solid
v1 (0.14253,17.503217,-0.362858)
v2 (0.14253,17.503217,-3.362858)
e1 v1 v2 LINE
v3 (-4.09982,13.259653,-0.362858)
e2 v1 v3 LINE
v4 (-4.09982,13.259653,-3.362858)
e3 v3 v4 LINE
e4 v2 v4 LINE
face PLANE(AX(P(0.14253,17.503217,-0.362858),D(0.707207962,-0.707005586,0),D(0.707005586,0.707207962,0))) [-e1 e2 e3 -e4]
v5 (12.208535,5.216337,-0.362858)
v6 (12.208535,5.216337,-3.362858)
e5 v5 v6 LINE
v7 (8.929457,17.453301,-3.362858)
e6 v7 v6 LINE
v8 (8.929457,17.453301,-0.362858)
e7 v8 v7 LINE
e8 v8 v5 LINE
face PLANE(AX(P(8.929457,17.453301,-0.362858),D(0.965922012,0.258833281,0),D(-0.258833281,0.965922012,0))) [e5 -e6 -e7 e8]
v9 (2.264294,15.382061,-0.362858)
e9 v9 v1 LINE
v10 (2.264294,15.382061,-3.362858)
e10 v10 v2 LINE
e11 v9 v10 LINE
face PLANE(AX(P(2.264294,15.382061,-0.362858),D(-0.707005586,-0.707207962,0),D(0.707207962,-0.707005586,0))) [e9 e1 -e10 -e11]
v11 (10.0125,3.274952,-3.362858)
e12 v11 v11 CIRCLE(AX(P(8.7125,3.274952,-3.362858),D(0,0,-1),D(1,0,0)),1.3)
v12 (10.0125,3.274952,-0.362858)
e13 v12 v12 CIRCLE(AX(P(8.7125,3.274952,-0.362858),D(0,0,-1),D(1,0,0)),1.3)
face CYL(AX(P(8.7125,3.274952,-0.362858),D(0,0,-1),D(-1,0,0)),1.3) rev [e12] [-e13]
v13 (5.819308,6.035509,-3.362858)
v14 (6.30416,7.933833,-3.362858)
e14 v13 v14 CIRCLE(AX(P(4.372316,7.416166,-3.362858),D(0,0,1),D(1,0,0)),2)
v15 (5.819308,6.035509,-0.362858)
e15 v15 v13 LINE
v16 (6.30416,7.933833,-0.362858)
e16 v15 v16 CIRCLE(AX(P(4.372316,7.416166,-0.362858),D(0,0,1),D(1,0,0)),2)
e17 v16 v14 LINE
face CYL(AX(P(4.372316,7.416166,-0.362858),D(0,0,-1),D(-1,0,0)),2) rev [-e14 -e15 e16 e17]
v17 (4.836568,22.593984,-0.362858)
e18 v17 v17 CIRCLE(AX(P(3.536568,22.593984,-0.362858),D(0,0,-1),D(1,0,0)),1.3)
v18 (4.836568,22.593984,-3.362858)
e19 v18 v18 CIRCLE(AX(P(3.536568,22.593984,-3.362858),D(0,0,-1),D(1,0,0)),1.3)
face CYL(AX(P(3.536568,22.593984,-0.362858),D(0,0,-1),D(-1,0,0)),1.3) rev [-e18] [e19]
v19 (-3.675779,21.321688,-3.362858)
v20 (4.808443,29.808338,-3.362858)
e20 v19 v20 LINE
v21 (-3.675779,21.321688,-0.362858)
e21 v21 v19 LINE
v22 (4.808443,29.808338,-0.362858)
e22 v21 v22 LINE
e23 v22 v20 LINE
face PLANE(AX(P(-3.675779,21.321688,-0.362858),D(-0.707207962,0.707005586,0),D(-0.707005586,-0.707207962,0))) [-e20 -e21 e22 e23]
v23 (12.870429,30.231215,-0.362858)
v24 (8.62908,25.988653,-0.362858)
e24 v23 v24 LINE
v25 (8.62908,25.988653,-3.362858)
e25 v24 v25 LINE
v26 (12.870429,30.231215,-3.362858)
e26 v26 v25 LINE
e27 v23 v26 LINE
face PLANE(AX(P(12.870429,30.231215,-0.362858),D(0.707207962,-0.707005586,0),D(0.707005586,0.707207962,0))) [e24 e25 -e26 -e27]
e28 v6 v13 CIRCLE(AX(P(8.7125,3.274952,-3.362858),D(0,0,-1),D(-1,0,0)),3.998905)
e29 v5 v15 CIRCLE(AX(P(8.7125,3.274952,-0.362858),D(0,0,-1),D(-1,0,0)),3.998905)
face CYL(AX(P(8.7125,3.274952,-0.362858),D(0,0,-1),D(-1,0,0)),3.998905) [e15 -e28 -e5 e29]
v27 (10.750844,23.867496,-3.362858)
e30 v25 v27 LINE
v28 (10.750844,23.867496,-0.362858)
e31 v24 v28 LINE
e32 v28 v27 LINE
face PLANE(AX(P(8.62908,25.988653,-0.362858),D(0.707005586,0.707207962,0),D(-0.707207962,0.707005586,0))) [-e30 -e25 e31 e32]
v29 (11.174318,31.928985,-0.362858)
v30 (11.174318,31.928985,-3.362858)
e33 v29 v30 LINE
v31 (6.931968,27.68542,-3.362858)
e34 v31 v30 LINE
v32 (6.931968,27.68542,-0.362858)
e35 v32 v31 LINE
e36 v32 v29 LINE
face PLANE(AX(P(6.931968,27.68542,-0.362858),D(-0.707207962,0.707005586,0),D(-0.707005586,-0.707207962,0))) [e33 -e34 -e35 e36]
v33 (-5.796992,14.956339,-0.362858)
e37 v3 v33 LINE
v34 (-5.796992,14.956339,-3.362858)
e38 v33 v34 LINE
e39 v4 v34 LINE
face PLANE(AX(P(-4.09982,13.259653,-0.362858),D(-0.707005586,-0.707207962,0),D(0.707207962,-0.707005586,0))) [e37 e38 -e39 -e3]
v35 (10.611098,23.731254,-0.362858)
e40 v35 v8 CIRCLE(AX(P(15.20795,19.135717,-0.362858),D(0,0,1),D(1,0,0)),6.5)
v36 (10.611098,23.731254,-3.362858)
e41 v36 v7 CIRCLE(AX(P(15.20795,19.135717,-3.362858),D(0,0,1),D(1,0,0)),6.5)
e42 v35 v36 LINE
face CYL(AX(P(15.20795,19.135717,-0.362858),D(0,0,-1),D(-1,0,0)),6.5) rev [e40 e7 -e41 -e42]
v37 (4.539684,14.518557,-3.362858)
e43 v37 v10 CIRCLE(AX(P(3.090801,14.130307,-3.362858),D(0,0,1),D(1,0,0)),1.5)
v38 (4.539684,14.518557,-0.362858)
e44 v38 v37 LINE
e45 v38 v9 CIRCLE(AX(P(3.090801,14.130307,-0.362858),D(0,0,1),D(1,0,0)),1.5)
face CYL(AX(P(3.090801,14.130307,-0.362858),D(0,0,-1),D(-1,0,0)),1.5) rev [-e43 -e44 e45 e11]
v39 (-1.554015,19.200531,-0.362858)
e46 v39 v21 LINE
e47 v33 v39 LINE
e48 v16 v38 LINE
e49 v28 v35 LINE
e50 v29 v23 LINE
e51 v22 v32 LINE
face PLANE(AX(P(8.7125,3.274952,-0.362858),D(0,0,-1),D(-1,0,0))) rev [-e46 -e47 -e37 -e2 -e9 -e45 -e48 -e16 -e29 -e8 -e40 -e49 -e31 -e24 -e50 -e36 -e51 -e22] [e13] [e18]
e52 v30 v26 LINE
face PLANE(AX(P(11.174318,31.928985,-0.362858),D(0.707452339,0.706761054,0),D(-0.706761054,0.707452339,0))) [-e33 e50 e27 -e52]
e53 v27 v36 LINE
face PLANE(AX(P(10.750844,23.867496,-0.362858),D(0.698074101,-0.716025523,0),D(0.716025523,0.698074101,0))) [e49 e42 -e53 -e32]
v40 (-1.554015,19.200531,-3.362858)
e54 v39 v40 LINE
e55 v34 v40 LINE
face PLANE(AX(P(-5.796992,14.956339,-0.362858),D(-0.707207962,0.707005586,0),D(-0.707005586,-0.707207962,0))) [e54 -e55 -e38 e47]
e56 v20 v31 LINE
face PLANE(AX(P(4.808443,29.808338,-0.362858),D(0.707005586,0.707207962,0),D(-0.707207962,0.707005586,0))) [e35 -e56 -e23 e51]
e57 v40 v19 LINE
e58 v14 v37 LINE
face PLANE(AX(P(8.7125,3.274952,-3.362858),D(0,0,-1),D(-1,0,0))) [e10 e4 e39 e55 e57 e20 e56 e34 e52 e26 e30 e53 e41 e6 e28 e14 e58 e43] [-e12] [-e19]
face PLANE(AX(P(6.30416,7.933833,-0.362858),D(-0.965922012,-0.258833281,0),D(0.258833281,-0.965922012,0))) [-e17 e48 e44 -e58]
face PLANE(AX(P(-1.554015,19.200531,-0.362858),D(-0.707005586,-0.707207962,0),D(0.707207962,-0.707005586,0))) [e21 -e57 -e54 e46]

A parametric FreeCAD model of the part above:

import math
import FreeCAD as App
import Part
import Sketcher

doc = App.newDocument("Part")
params = doc.addObject("Spreadsheet::Sheet", "Params")
for row, (alias, value) in enumerate([
    ("sketch1_radius", "2 mm"),
    ("sketch1_diameter", "2.6 mm"),
    ("sketch1_radius2", "1.5 mm"),
    ("sketch1_radius3", "6.5 mm"),
    ("pad1_length", "3 mm"),
], start=1):
    params.set(f"A{row}", alias)
    params.set(f"B{row}", "=" + value)
    params.setAlias(f"B{row}", alias)

body = doc.addObject("PartDesign::Body", "Body")

sketch1 = doc.addObject("Sketcher::SketchObject", "Sketch")
body.addObject(sketch1)
sketch1.AttachmentSupport = (doc.XY_Plane, [""])
sketch1.MapMode = "FlatFace"
sketch1.AttachmentOffset = App.Placement(App.Vector(0, 0, -3.362858), App.Rotation())
sketch1.addGeometry([
    Part.LineSegment(App.Vector(6.3, 7.93, 0), App.Vector(4.54, 14.52, 0)),
    Part.ArcOfCircle(Part.Circle(App.Vector(3.09, 14.13, 0), App.Vector(0, 0, 1), 1.5), math.radians(15), math.radians(123)),
    Part.LineSegment(App.Vector(2.26, 15.38, 0), App.Vector(0.14, 17.5, 0)),
    Part.LineSegment(App.Vector(0.14, 17.5, 0), App.Vector(-4.1, 13.26, 0)),
    Part.LineSegment(App.Vector(-4.1, 13.26, 0), App.Vector(-5.8, 14.96, 0)),
    Part.LineSegment(App.Vector(-5.8, 14.96, 0), App.Vector(-1.55, 19.2, 0)),
    Part.LineSegment(App.Vector(-1.55, 19.2, 0), App.Vector(-3.68, 21.32, 0)),
    Part.LineSegment(App.Vector(-3.68, 21.32, 0), App.Vector(4.81, 29.81, 0)),
    Part.LineSegment(App.Vector(4.81, 29.81, 0), App.Vector(6.93, 27.69, 0)),
    Part.LineSegment(App.Vector(6.93, 27.69, 0), App.Vector(11.17, 31.93, 0)),
    Part.LineSegment(App.Vector(11.17, 31.93, 0), App.Vector(12.87, 30.23, 0)),
    Part.LineSegment(App.Vector(12.87, 30.23, 0), App.Vector(8.63, 25.99, 0)),
    Part.LineSegment(App.Vector(8.63, 25.99, 0), App.Vector(10.75, 23.87, 0)),
    Part.LineSegment(App.Vector(10.75, 23.87, 0), App.Vector(10.61, 23.73, 0)),
    Part.ArcOfCircle(Part.Circle(App.Vector(15.21, 19.14, 0), App.Vector(0, 0, 1), 6.5), math.radians(135), math.radians(195)),
    Part.LineSegment(App.Vector(8.93, 17.45, 0), App.Vector(12.21, 5.22, 0)),
    Part.ArcOfCircle(Part.Circle(App.Vector(8.71, 3.27, 0), App.Vector(0, 0, 1), 4), math.radians(136), math.radians(389)),
    Part.ArcOfCircle(Part.Circle(App.Vector(4.37, 7.42, 0), App.Vector(0, 0, 1), 2), math.radians(-44), math.radians(15)),
    Part.Circle(App.Vector(8.71, 3.27, 0), App.Vector(0, 0, 1), 1.3),
    Part.Circle(App.Vector(3.54, 22.59, 0), App.Vector(0, 0, 1), 1.3),
], False)
sketch1.addConstraint([
    Sketcher.Constraint("Tangent", 0, 2, 1, 1),
    Sketcher.Constraint("Coincident", 1, 2, 2, 1),
    Sketcher.Constraint("Coincident", 2, 2, 3, 1),
    Sketcher.Constraint("Coincident", 3, 2, 4, 1),
    Sketcher.Constraint("Coincident", 4, 2, 5, 1),
    Sketcher.Constraint("Coincident", 5, 2, 6, 1),
    Sketcher.Constraint("Coincident", 6, 2, 7, 1),
    Sketcher.Constraint("Coincident", 7, 2, 8, 1),
    Sketcher.Constraint("Coincident", 8, 2, 9, 1),
    Sketcher.Constraint("Coincident", 9, 2, 10, 1),
    Sketcher.Constraint("Coincident", 10, 2, 11, 1),
    Sketcher.Constraint("Coincident", 11, 2, 12, 1),
    Sketcher.Constraint("Coincident", 12, 2, 13, 1),
    Sketcher.Constraint("Coincident", 13, 2, 14, 1),
    Sketcher.Constraint("Tangent", 14, 2, 15, 1),
    Sketcher.Constraint("Coincident", 15, 2, 16, 2),
    Sketcher.Constraint("Tangent", 16, 1, 17, 1),
    Sketcher.Constraint("Tangent", 17, 2, 0, 1),
    Sketcher.Constraint("Coincident", 18, 3, 16, 3),
    Sketcher.Constraint("Equal", 18, 19),
    Sketcher.Constraint("Perpendicular", 2, 3),
    Sketcher.Constraint("Perpendicular", 3, 4),
    Sketcher.Constraint("Perpendicular", 4, 5),
    Sketcher.Constraint("Perpendicular", 5, 6),
    Sketcher.Constraint("Perpendicular", 6, 7),
    Sketcher.Constraint("Perpendicular", 7, 8),
    Sketcher.Constraint("Perpendicular", 8, 9),
    Sketcher.Constraint("Parallel", 9, 11),
    Sketcher.Constraint("Perpendicular", 11, 12),
    Sketcher.Constraint("Parallel", 0, 15),
    Sketcher.Constraint("Equal", 2, 6),
    Sketcher.Constraint("Equal", 3, 9),
    Sketcher.Constraint("Equal", 6, 12),
    Sketcher.Constraint("Radius", 17, 2.0),
    Sketcher.Constraint("Diameter", 18, 2.6),
    Sketcher.Constraint("Radius", 1, 1.5),
    Sketcher.Constraint("Radius", 14, 6.5),
    Sketcher.Constraint("Radius", 16, 3.998905),
    Sketcher.Constraint("DistanceY", 19, 3, 9, 2, 9.335001),
    Sketcher.Constraint("Distance", 2, 3.000198),
    Sketcher.Constraint("DistanceX", -1, 1, 1, 3, 3.090801),
    Sketcher.Constraint("DistanceX", -1, 1, 16, 3, 8.7125),
    Sketcher.Constraint("DistanceX", -1, 1, 13, 2, 10.611098),
    Sketcher.Constraint("DistanceY", -1, 1, 14, 2, 17.453301),
    Sketcher.Constraint("DistanceX", 19, 3, 8, 2, 3.395401),
    Sketcher.Constraint("DistanceY", 14, 3, 10, 2, 11.095498),
    Sketcher.Constraint("DistanceY", 13, 2, 11, 2, 2.257399),
    Sketcher.Constraint("Distance", 4, 2.39982),
    Sketcher.Constraint("Distance", 7, 12.000219),
    Sketcher.Constraint("Distance", 8, 3.002689),
    Sketcher.Constraint("Distance", 11, 5.999031),
    Sketcher.Constraint("Distance", 13, 0.195169),
    Sketcher.Constraint("DistanceX", -1, 1, 14, 3, 15.20795),
    Sketcher.Constraint("DistanceY", -1, 1, 16, 3, 3.274952),
    Sketcher.Constraint("DistanceY", -1, 1, 1, 2, 15.382061),
    Sketcher.Constraint("DistanceX", -1, 1, 2, 2, 0.14253),
    Sketcher.Constraint("DistanceX", 3, 2, -1, 1, 4.09982),
    Sketcher.Constraint("DistanceY", -1, 1, 5, 2, 19.200531),
    Sketcher.Constraint("DistanceX", -1, 1, 16, 1, 5.819308),
])
sketch1.setExpression("Constraints[33]", "Params.sketch1_radius")
sketch1.setExpression("Constraints[34]", "Params.sketch1_diameter")
sketch1.setExpression("Constraints[35]", "Params.sketch1_radius2")
sketch1.setExpression("Constraints[36]", "Params.sketch1_radius3")
pad1 = doc.addObject("PartDesign::Pad", "Pad")
body.addObject(pad1)
pad1.Profile = sketch1
pad1.setExpression("Length", "Params.pad1_length")

doc.recompute()
